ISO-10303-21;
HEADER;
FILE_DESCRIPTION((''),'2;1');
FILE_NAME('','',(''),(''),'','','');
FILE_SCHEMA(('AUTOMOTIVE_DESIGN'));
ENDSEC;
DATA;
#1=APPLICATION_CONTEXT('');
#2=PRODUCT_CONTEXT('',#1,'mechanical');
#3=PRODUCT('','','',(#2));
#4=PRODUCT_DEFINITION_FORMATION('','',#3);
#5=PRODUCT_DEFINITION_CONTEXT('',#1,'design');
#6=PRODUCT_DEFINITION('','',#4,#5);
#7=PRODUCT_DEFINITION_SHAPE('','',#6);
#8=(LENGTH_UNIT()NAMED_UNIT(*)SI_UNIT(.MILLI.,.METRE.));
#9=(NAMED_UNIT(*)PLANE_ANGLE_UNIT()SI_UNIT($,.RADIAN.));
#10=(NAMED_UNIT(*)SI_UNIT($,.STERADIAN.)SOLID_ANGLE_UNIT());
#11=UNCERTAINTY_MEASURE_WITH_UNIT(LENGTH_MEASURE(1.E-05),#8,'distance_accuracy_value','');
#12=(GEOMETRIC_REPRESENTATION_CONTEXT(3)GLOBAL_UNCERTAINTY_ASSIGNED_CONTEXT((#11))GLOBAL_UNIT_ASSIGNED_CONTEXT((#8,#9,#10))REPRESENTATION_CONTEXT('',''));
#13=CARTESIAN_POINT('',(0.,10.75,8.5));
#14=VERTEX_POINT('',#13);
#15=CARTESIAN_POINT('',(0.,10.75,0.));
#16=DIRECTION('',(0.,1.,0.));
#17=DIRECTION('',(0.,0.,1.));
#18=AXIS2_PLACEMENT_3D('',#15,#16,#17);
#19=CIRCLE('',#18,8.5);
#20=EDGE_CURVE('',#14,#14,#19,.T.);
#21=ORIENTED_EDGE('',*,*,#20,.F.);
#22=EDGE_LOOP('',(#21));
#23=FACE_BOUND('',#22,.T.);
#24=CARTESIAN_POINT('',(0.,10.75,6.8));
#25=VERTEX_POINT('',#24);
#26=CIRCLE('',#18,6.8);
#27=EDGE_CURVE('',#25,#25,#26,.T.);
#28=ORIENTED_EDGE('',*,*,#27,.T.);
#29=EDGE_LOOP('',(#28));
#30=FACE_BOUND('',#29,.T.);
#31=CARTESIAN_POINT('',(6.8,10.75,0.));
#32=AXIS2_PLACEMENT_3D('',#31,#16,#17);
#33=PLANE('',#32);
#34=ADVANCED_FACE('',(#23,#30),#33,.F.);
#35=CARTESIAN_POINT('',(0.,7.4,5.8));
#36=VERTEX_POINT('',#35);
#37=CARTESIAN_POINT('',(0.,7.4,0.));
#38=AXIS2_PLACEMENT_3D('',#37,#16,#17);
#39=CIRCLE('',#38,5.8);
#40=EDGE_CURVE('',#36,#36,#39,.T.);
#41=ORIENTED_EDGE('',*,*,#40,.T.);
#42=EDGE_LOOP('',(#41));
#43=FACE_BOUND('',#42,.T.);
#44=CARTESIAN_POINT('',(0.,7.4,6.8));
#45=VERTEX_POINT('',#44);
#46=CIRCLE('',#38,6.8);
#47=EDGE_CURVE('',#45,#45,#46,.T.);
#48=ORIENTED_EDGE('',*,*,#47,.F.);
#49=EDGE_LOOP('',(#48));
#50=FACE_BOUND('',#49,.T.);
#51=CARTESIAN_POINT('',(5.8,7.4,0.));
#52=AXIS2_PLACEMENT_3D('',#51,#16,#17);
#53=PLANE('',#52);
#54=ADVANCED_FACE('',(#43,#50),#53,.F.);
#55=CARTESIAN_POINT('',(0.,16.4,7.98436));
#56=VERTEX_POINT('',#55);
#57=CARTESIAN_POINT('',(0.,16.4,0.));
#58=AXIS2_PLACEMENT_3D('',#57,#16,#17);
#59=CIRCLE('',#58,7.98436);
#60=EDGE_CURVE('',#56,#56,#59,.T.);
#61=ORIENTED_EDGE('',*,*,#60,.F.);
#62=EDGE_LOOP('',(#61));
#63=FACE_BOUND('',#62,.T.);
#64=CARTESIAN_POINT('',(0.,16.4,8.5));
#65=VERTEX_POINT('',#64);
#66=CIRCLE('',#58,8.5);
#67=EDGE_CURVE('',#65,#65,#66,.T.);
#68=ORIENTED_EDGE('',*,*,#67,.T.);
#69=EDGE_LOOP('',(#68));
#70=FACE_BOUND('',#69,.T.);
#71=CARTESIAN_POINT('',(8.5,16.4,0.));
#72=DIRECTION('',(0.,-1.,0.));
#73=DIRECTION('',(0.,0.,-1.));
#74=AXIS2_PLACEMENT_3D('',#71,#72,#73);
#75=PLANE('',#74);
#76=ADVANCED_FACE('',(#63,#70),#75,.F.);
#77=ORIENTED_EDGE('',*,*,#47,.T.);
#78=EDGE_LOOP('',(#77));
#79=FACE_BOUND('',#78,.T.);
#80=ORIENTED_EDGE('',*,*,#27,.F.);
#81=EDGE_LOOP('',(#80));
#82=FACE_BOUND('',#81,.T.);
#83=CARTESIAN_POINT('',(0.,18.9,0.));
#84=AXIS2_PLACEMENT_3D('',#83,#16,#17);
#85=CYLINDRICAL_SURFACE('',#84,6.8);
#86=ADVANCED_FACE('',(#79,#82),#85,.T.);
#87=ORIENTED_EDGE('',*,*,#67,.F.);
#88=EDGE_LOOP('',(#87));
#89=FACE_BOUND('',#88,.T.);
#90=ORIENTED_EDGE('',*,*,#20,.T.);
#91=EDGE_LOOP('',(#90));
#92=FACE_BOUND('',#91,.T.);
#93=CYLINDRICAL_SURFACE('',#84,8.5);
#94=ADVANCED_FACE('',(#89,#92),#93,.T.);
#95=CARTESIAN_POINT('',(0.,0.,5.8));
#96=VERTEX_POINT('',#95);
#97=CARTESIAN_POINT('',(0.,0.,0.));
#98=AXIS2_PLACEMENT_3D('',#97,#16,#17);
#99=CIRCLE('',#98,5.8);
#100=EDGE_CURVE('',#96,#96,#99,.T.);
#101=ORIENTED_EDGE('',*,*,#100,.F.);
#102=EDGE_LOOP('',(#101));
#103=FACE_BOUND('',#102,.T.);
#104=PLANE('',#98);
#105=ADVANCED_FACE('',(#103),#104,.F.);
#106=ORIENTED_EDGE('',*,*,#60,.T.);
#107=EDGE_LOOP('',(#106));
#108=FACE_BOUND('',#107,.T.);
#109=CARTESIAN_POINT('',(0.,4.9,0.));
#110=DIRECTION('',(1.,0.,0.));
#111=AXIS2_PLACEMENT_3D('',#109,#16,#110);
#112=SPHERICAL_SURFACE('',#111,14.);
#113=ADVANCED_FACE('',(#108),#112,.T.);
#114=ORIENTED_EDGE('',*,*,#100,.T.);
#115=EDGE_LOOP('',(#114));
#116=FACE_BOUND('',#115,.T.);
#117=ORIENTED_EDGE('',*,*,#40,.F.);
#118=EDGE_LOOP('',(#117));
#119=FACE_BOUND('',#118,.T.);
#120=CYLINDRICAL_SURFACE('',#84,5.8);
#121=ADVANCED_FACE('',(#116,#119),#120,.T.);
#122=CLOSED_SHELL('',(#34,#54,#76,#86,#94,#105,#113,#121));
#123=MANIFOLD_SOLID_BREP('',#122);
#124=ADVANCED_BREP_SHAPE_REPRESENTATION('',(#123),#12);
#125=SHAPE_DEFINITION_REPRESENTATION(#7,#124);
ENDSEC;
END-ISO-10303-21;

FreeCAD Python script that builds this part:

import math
import FreeCAD as App
import Part
import Sketcher
Q = App.Units.Quantity

doc = App.newDocument("Part")
body = doc.addObject("PartDesign::Body", "Body")

sketch1 = doc.addObject("Sketcher::SketchObject", "Sketch")
body.addObject(sketch1)
sketch1.AttachmentSupport = (doc.XY_Plane, [""])
sketch1.MapMode = "FlatFace"
sketch1.addGeometry([
    Part.LineSegment(App.Vector(0, 0, 0), App.Vector(5.8, 0, 0)),
    Part.LineSegment(App.Vector(5.8, 0, 0), App.Vector(5.8, 7.4, 0)),
    Part.LineSegment(App.Vector(5.8, 7.4, 0), App.Vector(6.8, 7.4, 0)),
    Part.LineSegment(App.Vector(6.8, 7.4, 0), App.Vector(6.8, 10.8, 0)),
    Part.LineSegment(App.Vector(6.8, 10.8, 0), App.Vector(8.5, 10.8, 0)),
    Part.LineSegment(App.Vector(8.5, 10.8, 0), App.Vector(8.5, 16.4, 0)),
    Part.LineSegment(App.Vector(8.5, 16.4, 0), App.Vector(8, 16.4, 0)),
    Part.ArcOfCircle(Part.Circle(App.Vector(0, 4.9, 0), App.Vector(0, 0, 1), 14), math.radians(55), math.radians(90)),
    Part.LineSegment(App.Vector(0, 18.9, 0), App.Vector(0, 0, 0)),
], False)
sketch1.addConstraint([
    Sketcher.Constraint("Coincident", 0, 2, 1, 1),
    Sketcher.Constraint("Coincident", 1, 2, 2, 1),
    Sketcher.Constraint("Coincident", 2, 2, 3, 1),
    Sketcher.Constraint("Coincident", 3, 2, 4, 1),
    Sketcher.Constraint("Coincident", 4, 2, 5, 1),
    Sketcher.Constraint("Coincident", 5, 2, 6, 1),
    Sketcher.Constraint("Coincident", 6, 2, 7, 1),
    Sketcher.Constraint("Coincident", 7, 2, 8, 1),
    Sketcher.Constraint("Coincident", 8, 2, 0, 1),
    Sketcher.Constraint("Horizontal", 0),
    Sketcher.Constraint("Vertical", 1),
    Sketcher.Constraint("Horizontal", 2),
    Sketcher.Constraint("Vertical", 3),
    Sketcher.Constraint("Horizontal", 4),
    Sketcher.Constraint("Vertical", 5),
    Sketcher.Constraint("Horizontal", 6),
    Sketcher.Constraint("Vertical", 8),
    Sketcher.Constraint("Coincident", 8, 2, -1, 1),
    Sketcher.Constraint("PointOnObject", 7, 3, -2),
    Sketcher.Constraint("Radius", 7, Q("14 mm")),
    Sketcher.Constraint("DistanceX", 2, 1, 2, 2, Q("1 mm")),
    Sketcher.Constraint("DistanceX", 0, 1, 0, 2, Q("5.8 mm")),
    Sketcher.Constraint("DistanceX", 4, 1, 4, 2, Q("1.7 mm")),
    Sketcher.Constraint("DistanceY", 1, 1, 1, 2, Q("7.4 mm")),
    Sketcher.Constraint("DistanceY", 8, 2, 8, 1, Q("18.9 mm")),
    Sketcher.Constraint("DistanceY", 2, 2, 5, 2, Q("9 mm")),
    Sketcher.Constraint("DistanceY", 3, 1, 3, 2, Q("3.35 mm")),
])
revolution = doc.addObject("PartDesign::Revolution", "Revolution")
body.addObject(revolution)
revolution.Profile = sketch1
revolution.ReferenceAxis = (sketch1, ["V_Axis"])
revolution.Angle = 360

doc.recompute()
